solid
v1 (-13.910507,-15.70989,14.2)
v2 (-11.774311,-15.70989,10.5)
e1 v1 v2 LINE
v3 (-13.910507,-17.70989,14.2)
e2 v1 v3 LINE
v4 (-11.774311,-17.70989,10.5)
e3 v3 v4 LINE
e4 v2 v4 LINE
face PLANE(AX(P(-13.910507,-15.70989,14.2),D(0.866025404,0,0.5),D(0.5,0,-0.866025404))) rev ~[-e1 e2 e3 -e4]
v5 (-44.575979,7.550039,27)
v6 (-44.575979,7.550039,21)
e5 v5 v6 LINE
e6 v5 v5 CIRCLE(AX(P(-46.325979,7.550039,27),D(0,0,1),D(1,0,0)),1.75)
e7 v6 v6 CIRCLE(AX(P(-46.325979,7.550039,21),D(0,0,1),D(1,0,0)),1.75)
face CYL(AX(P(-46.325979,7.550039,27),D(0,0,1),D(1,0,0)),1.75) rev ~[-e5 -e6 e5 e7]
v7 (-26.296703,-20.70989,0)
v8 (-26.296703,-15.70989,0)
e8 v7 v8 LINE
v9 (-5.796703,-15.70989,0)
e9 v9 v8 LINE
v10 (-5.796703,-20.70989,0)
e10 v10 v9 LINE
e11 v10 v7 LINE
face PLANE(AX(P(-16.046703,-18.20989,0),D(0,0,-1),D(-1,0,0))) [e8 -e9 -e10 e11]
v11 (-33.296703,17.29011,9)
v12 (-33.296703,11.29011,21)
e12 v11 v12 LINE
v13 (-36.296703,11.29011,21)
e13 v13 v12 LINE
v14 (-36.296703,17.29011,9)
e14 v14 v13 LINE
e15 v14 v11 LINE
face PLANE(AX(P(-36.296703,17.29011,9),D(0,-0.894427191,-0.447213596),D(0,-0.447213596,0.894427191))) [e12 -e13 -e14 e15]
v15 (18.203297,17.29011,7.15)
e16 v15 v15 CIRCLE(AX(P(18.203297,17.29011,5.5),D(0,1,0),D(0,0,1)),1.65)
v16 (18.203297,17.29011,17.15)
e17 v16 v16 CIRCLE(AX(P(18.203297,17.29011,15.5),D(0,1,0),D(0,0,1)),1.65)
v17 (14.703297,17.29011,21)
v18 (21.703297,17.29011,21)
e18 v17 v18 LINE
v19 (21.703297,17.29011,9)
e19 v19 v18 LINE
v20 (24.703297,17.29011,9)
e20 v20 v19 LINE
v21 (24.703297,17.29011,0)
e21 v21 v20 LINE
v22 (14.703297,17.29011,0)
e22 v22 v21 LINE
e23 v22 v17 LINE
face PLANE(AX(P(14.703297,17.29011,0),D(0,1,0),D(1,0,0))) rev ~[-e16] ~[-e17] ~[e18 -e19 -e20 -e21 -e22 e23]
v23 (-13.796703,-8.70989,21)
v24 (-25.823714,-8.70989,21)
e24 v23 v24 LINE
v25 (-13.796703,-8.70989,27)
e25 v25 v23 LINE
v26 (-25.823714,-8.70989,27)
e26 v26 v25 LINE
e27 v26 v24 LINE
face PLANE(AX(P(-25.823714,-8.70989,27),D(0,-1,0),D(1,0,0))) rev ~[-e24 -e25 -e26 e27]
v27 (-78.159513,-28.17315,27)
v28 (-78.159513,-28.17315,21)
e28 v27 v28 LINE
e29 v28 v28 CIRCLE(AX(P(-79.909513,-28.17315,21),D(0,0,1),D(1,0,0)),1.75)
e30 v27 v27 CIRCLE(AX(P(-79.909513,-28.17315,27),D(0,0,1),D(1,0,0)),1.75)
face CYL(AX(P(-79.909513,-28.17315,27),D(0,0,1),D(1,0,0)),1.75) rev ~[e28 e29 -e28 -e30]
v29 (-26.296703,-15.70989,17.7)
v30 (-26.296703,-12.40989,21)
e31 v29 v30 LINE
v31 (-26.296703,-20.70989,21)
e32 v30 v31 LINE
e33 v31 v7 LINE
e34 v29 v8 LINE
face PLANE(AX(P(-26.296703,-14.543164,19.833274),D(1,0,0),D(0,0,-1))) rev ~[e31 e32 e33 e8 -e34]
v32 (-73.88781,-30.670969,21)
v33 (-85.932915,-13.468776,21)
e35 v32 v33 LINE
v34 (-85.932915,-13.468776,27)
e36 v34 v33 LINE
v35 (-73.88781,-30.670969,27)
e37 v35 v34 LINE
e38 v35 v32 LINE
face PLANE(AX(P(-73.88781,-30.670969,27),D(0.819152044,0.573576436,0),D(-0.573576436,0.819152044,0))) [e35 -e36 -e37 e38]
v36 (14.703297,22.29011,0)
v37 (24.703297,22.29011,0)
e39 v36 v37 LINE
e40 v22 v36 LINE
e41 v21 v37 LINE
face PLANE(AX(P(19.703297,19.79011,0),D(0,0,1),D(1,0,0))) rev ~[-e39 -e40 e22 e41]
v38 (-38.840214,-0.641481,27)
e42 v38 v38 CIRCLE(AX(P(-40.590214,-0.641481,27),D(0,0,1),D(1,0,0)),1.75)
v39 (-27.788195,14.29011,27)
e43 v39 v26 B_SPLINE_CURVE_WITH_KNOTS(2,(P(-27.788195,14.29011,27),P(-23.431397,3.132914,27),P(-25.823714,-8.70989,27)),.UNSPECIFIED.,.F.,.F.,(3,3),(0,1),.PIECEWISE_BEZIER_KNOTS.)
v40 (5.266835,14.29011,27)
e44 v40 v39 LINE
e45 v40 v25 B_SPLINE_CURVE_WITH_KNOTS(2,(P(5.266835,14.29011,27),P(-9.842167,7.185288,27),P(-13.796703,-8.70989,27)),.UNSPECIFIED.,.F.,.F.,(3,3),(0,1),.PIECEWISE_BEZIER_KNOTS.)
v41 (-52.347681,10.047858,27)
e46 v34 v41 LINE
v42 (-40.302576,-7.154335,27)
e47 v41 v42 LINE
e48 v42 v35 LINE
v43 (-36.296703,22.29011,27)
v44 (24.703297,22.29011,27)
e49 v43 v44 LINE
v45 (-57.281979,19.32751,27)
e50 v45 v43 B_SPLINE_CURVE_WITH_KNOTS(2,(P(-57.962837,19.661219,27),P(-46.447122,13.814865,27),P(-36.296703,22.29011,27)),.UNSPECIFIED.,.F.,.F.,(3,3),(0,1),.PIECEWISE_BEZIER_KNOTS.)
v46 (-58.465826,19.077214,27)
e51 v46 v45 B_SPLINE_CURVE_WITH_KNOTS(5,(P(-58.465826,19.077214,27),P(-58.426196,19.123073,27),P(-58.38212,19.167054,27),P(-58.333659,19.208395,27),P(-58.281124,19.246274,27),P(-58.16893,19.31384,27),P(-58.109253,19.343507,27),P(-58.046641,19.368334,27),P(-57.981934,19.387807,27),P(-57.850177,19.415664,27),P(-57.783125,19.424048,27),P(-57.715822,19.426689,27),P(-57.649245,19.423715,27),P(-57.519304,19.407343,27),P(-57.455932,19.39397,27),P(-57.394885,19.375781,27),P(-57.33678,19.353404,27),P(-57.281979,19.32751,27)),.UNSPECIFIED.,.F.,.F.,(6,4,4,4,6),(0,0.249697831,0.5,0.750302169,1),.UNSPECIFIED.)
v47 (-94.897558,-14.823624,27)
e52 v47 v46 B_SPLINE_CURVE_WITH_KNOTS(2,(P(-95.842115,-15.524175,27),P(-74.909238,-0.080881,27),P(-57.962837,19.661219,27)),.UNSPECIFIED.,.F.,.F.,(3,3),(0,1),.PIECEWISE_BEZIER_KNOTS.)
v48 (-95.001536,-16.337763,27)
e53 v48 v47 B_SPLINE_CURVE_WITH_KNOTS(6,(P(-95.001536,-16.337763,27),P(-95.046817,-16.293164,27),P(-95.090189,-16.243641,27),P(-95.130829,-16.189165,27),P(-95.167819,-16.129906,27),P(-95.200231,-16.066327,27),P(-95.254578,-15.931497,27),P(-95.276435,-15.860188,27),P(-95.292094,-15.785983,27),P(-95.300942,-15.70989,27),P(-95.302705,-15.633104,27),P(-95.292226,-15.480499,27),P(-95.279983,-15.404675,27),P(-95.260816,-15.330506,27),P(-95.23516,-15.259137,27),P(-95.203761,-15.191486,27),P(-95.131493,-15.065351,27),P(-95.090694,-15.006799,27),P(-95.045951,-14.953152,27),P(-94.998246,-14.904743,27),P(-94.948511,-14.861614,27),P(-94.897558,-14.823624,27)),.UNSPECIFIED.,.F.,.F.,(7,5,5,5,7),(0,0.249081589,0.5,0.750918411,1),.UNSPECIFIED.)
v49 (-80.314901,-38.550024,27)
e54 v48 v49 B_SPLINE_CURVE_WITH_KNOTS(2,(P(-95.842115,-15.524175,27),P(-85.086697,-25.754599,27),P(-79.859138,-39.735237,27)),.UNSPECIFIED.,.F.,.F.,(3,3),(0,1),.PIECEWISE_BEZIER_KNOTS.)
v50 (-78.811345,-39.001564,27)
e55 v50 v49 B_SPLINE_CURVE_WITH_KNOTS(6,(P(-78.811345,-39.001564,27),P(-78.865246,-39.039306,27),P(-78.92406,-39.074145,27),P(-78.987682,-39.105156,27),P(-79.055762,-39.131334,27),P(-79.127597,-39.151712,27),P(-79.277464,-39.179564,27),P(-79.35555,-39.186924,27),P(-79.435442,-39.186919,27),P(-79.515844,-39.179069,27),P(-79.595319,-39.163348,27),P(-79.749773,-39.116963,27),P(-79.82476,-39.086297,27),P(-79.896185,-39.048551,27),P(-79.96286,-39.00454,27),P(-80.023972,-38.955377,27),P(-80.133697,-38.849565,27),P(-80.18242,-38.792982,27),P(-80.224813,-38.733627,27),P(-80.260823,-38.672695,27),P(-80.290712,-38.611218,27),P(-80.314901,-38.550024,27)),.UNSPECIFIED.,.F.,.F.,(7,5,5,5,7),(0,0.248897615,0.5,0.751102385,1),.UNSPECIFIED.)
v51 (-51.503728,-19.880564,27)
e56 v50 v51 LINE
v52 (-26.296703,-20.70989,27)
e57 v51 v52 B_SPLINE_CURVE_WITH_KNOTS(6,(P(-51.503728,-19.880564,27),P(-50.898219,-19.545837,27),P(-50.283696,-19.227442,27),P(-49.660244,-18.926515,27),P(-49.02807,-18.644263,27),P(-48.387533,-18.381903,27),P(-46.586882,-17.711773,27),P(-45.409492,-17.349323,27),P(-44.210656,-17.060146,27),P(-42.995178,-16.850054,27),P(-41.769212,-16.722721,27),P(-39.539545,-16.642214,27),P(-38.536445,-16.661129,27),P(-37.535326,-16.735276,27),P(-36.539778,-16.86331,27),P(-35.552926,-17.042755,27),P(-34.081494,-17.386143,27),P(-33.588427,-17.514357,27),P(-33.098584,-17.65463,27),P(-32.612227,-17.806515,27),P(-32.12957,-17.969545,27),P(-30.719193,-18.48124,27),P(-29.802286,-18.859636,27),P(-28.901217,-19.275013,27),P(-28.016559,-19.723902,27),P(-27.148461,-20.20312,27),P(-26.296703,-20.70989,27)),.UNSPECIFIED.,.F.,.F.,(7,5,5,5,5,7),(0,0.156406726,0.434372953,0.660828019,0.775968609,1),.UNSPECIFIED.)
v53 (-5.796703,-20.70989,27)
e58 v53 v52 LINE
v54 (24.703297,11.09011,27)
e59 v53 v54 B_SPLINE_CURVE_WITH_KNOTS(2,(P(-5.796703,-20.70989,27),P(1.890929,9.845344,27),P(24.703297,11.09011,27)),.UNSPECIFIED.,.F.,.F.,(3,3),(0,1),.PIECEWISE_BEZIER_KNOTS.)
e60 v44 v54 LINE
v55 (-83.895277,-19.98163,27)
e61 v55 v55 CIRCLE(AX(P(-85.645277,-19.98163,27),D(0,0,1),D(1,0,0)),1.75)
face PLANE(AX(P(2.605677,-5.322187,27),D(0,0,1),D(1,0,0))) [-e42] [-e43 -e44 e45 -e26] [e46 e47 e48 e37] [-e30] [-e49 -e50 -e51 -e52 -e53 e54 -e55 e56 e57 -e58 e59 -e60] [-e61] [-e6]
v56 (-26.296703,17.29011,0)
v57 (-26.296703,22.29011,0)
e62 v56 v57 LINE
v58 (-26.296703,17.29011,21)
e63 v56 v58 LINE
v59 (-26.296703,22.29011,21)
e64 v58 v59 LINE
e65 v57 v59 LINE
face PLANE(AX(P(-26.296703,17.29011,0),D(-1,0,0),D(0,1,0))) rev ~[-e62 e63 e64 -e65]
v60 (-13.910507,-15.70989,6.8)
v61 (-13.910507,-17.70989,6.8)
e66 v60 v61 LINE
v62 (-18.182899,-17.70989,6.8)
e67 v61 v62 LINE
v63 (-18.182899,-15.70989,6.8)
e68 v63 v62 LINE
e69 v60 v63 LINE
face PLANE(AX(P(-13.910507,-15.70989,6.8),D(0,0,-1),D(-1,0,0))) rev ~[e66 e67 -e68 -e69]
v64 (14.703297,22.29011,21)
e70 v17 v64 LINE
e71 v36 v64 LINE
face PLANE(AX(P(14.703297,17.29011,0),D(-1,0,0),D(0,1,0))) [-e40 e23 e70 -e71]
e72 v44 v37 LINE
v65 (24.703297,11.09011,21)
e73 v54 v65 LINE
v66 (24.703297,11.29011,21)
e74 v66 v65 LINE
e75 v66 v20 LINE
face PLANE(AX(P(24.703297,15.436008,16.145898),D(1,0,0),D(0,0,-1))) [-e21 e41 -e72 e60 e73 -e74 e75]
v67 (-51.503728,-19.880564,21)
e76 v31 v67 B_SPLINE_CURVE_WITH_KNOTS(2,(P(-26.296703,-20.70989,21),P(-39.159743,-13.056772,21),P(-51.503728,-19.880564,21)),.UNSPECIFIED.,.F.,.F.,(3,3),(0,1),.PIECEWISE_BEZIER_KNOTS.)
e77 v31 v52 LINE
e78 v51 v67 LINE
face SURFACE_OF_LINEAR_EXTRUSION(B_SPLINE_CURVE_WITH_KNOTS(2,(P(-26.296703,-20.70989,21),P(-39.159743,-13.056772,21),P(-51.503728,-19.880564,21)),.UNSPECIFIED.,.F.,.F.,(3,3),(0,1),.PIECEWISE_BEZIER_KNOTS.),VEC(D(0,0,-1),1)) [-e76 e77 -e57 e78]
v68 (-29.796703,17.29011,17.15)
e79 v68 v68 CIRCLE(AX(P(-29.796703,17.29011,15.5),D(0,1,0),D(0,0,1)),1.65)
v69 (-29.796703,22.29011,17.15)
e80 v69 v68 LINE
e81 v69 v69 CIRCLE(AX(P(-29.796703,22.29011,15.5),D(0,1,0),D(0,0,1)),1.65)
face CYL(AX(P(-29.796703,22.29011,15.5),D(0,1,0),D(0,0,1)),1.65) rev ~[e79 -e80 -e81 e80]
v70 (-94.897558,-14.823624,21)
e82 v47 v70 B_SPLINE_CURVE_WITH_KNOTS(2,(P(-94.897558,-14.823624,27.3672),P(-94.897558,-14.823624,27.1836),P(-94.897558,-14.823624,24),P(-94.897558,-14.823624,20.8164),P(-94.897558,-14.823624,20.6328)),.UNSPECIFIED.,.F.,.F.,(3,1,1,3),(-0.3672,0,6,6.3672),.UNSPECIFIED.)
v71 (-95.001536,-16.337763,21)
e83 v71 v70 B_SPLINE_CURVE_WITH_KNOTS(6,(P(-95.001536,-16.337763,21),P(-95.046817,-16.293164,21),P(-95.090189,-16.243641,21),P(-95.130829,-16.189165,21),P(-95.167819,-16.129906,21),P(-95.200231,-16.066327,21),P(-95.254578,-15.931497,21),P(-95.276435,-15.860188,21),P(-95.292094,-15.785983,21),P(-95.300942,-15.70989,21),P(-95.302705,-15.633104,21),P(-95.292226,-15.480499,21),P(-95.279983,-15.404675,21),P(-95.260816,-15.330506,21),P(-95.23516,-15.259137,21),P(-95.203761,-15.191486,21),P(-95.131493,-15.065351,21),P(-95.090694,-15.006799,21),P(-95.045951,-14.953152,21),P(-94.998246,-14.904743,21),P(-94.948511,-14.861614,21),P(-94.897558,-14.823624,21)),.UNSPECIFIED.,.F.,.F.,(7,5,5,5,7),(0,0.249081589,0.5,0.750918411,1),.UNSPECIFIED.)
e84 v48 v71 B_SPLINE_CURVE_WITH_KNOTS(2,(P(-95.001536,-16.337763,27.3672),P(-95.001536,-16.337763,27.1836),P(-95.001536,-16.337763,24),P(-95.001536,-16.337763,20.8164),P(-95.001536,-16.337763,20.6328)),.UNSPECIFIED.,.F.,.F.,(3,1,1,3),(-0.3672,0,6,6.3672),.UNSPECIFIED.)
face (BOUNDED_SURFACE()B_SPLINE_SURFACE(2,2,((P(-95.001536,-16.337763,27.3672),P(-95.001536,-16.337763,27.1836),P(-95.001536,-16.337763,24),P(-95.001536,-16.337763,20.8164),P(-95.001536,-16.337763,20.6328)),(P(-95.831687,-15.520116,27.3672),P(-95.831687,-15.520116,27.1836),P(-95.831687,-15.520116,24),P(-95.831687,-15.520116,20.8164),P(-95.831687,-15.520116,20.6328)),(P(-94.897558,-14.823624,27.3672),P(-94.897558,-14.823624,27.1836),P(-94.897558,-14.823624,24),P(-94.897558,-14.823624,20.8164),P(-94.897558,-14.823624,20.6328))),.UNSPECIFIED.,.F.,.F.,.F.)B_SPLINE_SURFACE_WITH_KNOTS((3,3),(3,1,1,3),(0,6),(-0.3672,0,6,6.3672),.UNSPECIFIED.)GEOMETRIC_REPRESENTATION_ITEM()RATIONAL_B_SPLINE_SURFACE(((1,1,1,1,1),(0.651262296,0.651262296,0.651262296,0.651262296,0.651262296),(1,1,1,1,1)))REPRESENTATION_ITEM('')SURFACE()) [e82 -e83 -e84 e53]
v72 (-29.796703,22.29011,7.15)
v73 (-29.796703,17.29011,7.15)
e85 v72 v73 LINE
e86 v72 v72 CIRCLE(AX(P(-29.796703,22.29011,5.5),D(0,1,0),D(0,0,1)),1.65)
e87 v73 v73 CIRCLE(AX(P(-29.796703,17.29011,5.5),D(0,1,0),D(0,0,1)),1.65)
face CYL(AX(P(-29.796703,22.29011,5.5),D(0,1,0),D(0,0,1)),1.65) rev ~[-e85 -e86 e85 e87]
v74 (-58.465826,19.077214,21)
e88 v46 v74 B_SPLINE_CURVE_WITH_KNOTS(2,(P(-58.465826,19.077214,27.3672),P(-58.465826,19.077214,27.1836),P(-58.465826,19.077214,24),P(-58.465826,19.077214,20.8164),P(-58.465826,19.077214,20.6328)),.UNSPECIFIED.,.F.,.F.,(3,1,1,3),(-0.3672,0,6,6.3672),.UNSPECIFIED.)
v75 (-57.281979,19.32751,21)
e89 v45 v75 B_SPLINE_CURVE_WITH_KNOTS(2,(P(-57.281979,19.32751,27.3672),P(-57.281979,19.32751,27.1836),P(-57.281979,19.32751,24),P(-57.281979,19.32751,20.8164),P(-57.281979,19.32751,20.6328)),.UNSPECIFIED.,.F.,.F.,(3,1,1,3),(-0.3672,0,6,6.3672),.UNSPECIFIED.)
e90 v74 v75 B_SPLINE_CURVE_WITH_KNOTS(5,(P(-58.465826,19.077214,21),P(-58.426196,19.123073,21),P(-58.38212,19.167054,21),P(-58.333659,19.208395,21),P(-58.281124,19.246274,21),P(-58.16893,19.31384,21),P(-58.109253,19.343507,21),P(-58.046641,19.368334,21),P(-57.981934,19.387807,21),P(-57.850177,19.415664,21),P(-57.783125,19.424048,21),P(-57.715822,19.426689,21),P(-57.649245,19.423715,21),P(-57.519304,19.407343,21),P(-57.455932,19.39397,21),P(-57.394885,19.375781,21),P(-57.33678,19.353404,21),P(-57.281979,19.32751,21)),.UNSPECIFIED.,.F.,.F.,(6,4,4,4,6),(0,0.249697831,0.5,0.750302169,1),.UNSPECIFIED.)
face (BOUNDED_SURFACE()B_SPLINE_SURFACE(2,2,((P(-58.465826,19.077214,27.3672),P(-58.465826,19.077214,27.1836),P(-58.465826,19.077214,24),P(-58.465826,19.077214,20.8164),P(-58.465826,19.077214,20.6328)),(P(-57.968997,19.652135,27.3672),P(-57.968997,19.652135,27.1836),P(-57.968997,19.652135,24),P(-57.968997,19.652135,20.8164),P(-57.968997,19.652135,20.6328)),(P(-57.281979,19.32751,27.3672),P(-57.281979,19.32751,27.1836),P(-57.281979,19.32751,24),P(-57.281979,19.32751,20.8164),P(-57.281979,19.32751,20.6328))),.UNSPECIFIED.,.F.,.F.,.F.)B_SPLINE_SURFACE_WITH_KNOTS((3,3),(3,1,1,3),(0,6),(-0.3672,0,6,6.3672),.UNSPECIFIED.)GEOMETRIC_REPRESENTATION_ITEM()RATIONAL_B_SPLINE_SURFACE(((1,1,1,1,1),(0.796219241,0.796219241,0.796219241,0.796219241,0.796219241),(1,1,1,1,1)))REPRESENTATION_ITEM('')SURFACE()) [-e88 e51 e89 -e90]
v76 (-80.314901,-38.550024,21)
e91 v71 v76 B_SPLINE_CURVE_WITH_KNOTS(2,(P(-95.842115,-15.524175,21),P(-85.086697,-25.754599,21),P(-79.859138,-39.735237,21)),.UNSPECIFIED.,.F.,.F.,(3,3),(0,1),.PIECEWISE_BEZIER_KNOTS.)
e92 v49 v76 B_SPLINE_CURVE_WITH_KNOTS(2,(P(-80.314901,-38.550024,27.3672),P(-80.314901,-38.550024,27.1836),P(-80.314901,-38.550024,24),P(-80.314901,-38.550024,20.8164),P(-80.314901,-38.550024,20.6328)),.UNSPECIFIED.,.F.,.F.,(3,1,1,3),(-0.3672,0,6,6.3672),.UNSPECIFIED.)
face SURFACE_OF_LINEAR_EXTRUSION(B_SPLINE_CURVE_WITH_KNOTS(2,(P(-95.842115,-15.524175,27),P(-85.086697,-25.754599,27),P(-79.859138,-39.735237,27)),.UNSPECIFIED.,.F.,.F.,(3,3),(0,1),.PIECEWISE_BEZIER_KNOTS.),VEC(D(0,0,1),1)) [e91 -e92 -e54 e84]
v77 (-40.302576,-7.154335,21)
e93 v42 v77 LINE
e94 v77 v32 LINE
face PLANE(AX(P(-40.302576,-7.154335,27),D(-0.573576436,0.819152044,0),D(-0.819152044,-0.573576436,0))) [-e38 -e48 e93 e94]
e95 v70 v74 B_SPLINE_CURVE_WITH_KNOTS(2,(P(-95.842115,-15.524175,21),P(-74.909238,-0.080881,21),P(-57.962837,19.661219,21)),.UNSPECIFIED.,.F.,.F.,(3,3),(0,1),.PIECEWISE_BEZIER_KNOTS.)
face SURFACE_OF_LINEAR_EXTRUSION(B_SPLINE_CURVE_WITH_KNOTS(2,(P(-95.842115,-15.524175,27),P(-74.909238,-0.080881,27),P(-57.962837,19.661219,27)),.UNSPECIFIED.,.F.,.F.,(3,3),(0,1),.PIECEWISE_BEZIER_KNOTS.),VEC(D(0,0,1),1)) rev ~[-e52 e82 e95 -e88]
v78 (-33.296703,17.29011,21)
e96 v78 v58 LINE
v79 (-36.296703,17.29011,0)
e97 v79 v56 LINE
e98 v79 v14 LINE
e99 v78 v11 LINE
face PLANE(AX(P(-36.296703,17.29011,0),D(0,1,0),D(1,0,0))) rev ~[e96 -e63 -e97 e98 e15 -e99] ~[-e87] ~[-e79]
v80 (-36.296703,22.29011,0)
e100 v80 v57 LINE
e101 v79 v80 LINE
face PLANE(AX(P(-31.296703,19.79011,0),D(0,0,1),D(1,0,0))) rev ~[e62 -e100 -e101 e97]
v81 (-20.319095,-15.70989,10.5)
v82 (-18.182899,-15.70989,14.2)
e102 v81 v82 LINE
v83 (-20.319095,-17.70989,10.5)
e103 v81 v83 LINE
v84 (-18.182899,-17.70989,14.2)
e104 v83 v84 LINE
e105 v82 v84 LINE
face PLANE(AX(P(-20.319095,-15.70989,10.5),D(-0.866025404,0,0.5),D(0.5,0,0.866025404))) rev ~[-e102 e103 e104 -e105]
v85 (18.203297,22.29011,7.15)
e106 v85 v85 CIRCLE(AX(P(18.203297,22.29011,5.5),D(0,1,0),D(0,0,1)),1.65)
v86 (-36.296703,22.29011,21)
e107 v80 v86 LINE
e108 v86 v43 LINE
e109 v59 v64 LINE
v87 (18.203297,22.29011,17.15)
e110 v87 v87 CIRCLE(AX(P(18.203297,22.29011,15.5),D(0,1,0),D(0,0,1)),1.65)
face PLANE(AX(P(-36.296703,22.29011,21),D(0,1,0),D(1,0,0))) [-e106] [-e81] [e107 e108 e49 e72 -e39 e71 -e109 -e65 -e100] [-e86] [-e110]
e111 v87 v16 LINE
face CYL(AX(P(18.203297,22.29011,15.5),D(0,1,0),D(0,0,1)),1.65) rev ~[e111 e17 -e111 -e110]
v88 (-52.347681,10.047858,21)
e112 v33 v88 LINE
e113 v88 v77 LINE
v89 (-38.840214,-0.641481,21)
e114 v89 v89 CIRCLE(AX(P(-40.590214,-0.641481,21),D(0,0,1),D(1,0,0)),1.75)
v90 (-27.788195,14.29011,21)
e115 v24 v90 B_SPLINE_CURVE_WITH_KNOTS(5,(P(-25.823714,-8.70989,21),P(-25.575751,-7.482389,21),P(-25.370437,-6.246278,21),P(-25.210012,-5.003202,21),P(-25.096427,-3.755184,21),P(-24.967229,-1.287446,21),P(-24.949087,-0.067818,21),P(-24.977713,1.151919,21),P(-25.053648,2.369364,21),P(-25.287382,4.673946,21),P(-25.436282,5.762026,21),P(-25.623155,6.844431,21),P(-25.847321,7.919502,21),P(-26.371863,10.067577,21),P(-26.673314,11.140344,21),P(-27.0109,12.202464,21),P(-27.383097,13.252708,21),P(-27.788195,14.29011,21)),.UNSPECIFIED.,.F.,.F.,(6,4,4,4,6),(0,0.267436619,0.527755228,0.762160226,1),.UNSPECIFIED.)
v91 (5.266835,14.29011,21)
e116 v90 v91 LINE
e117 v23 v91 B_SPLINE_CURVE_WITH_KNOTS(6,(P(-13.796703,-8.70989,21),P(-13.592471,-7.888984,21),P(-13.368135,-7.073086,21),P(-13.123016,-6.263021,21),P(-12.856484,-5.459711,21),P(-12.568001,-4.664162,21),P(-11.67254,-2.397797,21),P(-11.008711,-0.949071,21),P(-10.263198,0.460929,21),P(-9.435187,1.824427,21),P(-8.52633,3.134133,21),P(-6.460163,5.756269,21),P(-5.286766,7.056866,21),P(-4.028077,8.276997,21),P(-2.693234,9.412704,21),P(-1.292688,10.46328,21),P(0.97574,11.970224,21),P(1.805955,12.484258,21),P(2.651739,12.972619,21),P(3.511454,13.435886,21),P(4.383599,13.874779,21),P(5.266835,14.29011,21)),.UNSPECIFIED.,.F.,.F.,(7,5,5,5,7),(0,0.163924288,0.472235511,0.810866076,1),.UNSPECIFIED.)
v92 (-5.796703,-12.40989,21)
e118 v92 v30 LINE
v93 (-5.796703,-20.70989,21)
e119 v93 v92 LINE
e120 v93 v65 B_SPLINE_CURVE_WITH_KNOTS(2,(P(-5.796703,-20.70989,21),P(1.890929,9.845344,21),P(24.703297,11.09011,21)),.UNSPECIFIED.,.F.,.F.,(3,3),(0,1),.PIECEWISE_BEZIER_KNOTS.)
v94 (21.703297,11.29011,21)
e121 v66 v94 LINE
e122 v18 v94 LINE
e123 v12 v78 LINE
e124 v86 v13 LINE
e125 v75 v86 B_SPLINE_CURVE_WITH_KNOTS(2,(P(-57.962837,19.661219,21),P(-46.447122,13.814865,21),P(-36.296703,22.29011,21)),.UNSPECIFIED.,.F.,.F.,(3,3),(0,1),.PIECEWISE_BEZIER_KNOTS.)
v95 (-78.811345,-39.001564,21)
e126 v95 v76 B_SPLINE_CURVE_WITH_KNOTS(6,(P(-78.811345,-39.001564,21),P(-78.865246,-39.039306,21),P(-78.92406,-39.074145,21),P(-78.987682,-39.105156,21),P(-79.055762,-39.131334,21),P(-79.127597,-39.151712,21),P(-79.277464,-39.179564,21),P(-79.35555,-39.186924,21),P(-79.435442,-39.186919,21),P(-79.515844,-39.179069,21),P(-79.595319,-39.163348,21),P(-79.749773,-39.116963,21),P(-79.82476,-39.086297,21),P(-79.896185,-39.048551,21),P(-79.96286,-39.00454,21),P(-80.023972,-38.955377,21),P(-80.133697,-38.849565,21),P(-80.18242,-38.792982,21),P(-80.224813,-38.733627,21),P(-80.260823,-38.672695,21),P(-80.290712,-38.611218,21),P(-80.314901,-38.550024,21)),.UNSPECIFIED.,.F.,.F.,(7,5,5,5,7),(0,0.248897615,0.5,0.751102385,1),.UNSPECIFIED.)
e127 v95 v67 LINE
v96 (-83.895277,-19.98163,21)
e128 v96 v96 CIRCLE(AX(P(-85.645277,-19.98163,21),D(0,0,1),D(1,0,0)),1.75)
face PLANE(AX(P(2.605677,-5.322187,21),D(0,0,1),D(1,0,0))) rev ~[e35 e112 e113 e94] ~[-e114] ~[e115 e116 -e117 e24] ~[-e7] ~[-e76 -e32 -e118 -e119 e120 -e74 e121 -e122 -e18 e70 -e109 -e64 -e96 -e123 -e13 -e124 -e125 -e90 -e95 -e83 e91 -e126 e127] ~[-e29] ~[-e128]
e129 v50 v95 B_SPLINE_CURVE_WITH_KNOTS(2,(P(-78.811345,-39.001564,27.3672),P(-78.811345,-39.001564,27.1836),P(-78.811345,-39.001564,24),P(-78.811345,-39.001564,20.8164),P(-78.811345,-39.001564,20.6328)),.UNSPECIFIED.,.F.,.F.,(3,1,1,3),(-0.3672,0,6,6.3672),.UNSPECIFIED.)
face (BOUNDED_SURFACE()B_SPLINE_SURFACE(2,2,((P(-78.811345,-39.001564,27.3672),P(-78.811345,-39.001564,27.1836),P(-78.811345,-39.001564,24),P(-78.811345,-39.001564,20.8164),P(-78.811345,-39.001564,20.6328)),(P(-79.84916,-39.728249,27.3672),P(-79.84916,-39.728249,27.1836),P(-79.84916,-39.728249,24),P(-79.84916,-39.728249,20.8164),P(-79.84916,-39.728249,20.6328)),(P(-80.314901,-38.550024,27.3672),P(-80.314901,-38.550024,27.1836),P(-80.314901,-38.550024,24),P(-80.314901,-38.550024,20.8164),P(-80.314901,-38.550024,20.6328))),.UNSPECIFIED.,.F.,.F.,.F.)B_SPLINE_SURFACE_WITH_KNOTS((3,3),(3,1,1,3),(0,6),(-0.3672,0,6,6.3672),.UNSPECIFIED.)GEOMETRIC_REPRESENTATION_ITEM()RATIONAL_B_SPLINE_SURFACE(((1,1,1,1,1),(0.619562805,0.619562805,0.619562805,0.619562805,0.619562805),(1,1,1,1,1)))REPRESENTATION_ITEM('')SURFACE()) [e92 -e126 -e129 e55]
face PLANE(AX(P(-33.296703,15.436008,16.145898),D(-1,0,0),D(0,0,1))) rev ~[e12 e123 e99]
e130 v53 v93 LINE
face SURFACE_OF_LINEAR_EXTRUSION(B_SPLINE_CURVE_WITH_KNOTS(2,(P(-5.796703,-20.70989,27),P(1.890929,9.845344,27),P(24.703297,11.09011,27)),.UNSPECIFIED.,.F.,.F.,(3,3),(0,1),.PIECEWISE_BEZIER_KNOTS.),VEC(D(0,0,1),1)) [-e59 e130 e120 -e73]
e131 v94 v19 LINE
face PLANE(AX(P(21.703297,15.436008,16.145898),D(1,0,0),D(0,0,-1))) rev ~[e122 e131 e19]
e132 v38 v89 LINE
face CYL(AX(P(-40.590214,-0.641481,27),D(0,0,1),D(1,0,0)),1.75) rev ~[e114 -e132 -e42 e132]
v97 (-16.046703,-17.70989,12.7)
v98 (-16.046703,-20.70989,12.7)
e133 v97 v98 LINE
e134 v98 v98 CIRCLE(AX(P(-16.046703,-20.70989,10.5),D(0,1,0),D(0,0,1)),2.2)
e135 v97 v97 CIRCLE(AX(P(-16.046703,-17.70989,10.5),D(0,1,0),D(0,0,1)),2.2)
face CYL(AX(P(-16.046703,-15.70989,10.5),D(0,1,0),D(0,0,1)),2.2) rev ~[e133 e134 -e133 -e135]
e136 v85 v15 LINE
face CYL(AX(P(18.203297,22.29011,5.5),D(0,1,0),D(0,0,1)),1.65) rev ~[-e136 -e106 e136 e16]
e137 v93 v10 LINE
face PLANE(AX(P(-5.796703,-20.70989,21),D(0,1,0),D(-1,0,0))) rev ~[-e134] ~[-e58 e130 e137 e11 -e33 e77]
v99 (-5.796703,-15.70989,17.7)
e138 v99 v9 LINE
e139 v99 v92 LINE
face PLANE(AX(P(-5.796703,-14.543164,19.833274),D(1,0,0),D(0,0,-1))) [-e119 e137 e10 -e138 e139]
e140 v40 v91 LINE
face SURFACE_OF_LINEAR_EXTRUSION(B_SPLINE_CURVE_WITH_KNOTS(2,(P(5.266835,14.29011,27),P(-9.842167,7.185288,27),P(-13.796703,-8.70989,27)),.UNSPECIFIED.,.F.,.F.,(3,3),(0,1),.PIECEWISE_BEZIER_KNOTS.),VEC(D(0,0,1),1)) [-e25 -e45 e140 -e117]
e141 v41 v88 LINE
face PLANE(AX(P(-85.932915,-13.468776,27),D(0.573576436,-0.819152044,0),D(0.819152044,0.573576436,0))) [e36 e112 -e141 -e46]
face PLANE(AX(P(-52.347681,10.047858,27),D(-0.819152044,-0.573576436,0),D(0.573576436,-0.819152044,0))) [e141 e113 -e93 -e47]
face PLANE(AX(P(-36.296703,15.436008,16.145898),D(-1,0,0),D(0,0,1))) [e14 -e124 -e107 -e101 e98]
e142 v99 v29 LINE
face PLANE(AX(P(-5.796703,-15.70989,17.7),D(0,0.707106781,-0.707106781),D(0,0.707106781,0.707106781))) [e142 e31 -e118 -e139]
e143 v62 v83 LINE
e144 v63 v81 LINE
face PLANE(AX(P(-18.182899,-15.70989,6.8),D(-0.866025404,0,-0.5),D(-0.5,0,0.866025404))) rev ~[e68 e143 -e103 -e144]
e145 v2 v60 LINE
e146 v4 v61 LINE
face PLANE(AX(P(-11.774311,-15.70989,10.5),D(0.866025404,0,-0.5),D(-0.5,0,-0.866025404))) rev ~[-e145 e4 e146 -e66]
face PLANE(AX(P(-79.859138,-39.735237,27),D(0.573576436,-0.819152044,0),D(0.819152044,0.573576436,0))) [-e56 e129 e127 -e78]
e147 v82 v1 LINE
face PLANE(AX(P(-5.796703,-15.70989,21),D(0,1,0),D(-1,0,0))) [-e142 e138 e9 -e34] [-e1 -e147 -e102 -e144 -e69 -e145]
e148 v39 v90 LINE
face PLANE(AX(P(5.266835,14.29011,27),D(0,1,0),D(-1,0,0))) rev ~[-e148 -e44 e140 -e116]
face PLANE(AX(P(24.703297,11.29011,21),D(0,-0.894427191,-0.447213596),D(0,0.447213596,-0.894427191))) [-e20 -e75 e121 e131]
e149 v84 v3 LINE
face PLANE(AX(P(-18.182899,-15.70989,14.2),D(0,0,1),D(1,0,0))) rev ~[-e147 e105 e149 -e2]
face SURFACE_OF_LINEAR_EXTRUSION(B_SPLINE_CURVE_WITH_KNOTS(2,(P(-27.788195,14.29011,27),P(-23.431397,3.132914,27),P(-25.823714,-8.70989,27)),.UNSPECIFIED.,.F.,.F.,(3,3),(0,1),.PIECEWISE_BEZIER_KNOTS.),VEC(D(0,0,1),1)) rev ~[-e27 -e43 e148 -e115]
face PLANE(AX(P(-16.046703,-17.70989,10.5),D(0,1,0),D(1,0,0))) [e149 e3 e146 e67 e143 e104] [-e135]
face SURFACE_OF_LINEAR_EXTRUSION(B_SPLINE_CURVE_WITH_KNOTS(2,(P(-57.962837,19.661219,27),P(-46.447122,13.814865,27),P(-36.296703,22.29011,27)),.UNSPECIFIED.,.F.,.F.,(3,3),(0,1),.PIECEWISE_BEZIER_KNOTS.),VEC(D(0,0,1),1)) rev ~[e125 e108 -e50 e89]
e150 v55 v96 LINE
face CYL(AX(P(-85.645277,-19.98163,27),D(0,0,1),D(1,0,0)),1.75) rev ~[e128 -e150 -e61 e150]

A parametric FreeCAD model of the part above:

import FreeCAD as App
import Part
import Sketcher
Q = App.Units.Quantity


def edges_at(feature, points):
    """Names of the edges that pass closest to the given points."""
    edges = feature.Shape.Edges
    near = lambda p: min(range(len(edges)), key=lambda i: edges[i].distToShape(Part.Vertex(*p))[0])
    return sorted({f"Edge{near(p) + 1}" for p in points})


def add_polygon(sketch, points):
    """Adds a closed chain of lines whose ends are joined by coincident constraints."""
    first, n = sketch.GeometryCount, len(points)
    for a, b in zip(points, points[1:] + points[:1]):
        sketch.addGeometry(Part.LineSegment(App.Vector(*a, 0), App.Vector(*b, 0)), False)
    for i in range(n):
        sketch.addConstraint(Sketcher.Constraint("Coincident", first + i, 2, first + (i + 1) % n, 1))

doc = App.newDocument("Part")
body = doc.addObject("PartDesign::Body", "Body")

# Sketch on XY plane
sketch1 = body.newObject("Sketcher::SketchObject", "Sketch")
sketch1.AttachmentSupport = (doc.getObject("XY_Plane"), [""])
sketch1.MapMode = "FlatFace"
add_polygon(sketch1, [(-36.296703, 22.29011), (-36.296703, 17.29011), (-26.296703, 17.29011), (-26.296703, 22.29011)])  # lines 0-3
sketch1.addConstraint([
    Sketcher.Constraint("Vertical", 0),
    Sketcher.Constraint("Horizontal", 1),
    Sketcher.Constraint("Vertical", 2),
    Sketcher.Constraint("Horizontal", 3),
    Sketcher.Constraint("DistanceX", 1, 1, 1, 2, 10.0),
    Sketcher.Constraint("DistanceY", 0, 2, 0, 1, 5.0),
    Sketcher.Constraint("DistanceY", -1, 1, 0, 2, 17.29011),
    Sketcher.Constraint("DistanceX", 0, 2, -1, 1, 36.296703),
])
pad1 = body.newObject("PartDesign::Pad", "Pad")
pad1.Profile = sketch1
pad1.Length = 21
body2 = doc.addObject("PartDesign::Body", "Body001")

# Sketch on XY plane
sketch2 = body2.newObject("Sketcher::SketchObject", "Sketch001")
sketch2.AttachmentSupport = (doc.getObject("XY_Plane001"), [""])
sketch2.MapMode = "FlatFace"
add_polygon(sketch2, [(14.703297, 22.29011), (14.703297, 17.29011), (24.703297, 17.29011), (24.703297, 22.29011)])  # lines 0-3
sketch2.addConstraint([
    Sketcher.Constraint("Vertical", 0),
    Sketcher.Constraint("Horizontal", 1),
    Sketcher.Constraint("Vertical", 2),
    Sketcher.Constraint("Horizontal", 3),
    Sketcher.Constraint("DistanceX", 1, 1, 1, 2, 10.0),
    Sketcher.Constraint("DistanceY", 0, 2, 0, 1, 5.0),
    Sketcher.Constraint("DistanceY", -1, 1, 0, 2, 17.29011),
    Sketcher.Constraint("DistanceX", -1, 1, 0, 2, 14.703297),
])
pad2 = body2.newObject("PartDesign::Pad", "Pad001")
pad2.Profile = sketch2
pad2.Length = 21
body.AllowCompound = True
doc.recompute()

boolean = body.newObject("PartDesign::Boolean", "Boolean")
boolean.Type = "Fuse"
boolean.addObjects([body2])

# Sketch on XY plane
sketch3 = body.newObject("Sketcher::SketchObject", "Sketch002")
sketch3.AttachmentSupport = (doc.getObject("XY_Plane"), [""])
sketch3.MapMode = "FlatFace"
sketch3.AttachmentOffset = App.Placement(App.Vector(0, 0, 21), App.Rotation())
add_polygon(sketch3, [(24.703297, 22.29011), (-36.296703, 22.29011), (-36.296703, -20.70989), (-5.796703, -20.70989), (-5.796703, -11.20989), (12.703297, 7.29011), (24.703297, 7.29011)])  # lines 0-6
sketch3.addConstraint([
    Sketcher.Constraint("Horizontal", 0),
    Sketcher.Constraint("Vertical", 1),
    Sketcher.Constraint("Horizontal", 2),
    Sketcher.Constraint("Vertical", 3),
    Sketcher.Constraint("Horizontal", 5),
    Sketcher.Constraint("Vertical", 6),
    Sketcher.Constraint("DistanceX", 0, 2, 0, 1, 61.0),
    Sketcher.Constraint("DistanceX", 5, 1, 5, 2, 12.0),
    Sketcher.Constraint("DistanceY", 1, 2, 1, 1, 43.0),
    Sketcher.Constraint("DistanceY", 6, 1, 6, 2, 15.0),
    Sketcher.Constraint("Angle", 4, Q("45 deg")),
    Sketcher.Constraint("DistanceX", 2, 1, 2, 2, 30.5),
    Sketcher.Constraint("DistanceY", -1, 1, 0, 2, 22.29011),
    Sketcher.Constraint("DistanceX", 0, 2, -1, 1, 36.296703),
])
pad3 = body.newObject("PartDesign::Pad", "Pad002")
pad3.Profile = sketch3
pad3.Length = 6

# Sketch on XY plane
sketch4 = body.newObject("Sketcher::SketchObject", "Sketch003")
sketch4.AttachmentSupport = (doc.getObject("XY_Plane"), [""])
sketch4.MapMode = "FlatFace"
sketch4.AttachmentOffset = App.Placement(App.Vector(0, 0, 21), App.Rotation())
add_polygon(sketch4, [(-5.796703, -15.70989), (-5.796703, -20.70989), (-26.296703, -20.70989), (-26.296703, -15.70989)])  # lines 0-3
sketch4.addConstraint([
    Sketcher.Constraint("Vertical", 0),
    Sketcher.Constraint("Horizontal", 1),
    Sketcher.Constraint("Vertical", 2),
    Sketcher.Constraint("Horizontal", 3),
    Sketcher.Constraint("DistanceY", 0, 2, 0, 1, 5.0),
    Sketcher.Constraint("DistanceX", 1, 2, 1, 1, 20.5),
    Sketcher.Constraint("DistanceY", 0, 2, -1, 1, 20.70989),
    Sketcher.Constraint("DistanceX", 0, 2, -1, 1, 5.796703),
])
pad4 = body.newObject("PartDesign::Pad", "Pad003")
pad4.Profile = sketch4
pad4.Length = 21
pad4.Reversed = True

# Sketch on XZ plane
sketch5 = body.newObject("Sketcher::SketchObject", "Sketch004")
sketch5.AttachmentSupport = (doc.getObject("XZ_Plane"), [""])
sketch5.MapMode = "FlatFace"
sketch5.AttachmentOffset = App.Placement(App.Vector(0, 0, -22.29011), App.Rotation())
sketch5.addGeometry(Part.Circle(App.Vector(-29.796703, 5.5, 0), App.Vector(0, 0, 1), 1.65), False)
sketch5.addConstraint([
    Sketcher.Constraint("Diameter", 0, 3.3),
    Sketcher.Constraint("DistanceY", -1, 1, 0, 3, 5.5),
    Sketcher.Constraint("DistanceX", 0, 3, -1, 1, 29.796703),
])
pocket1 = body.newObject("PartDesign::Pocket", "Pocket")
pocket1.Profile = sketch5
pocket1.Type = "UpToFirst"
pocket1.Reversed = True

# Sketch on XZ plane
sketch6 = body.newObject("Sketcher::SketchObject", "Sketch005")
sketch6.AttachmentSupport = (doc.getObject("XZ_Plane"), [""])
sketch6.MapMode = "FlatFace"
sketch6.AttachmentOffset = App.Placement(App.Vector(0, 0, -22.29011), App.Rotation())
sketch6.addGeometry(Part.Circle(App.Vector(18.203297, 5.5, 0), App.Vector(0, 0, 1), 1.65), False)
sketch6.addConstraint([
    Sketcher.Constraint("Diameter", 0, 3.3),
    Sketcher.Constraint("DistanceY", -1, 1, 0, 3, 5.5),
    Sketcher.Constraint("DistanceX", -1, 1, 0, 3, 18.203297),
])
pocket2 = body.newObject("PartDesign::Pocket", "Pocket001")
pocket2.Profile = sketch6
pocket2.Type = "UpToFirst"
pocket2.Reversed = True

# Sketch on XZ plane
sketch7 = body.newObject("Sketcher::SketchObject", "Sketch006")
sketch7.AttachmentSupport = (doc.getObject("XZ_Plane"), [""])
sketch7.MapMode = "FlatFace"
sketch7.AttachmentOffset = App.Placement(App.Vector(0, 0, -22.29011), App.Rotation())
sketch7.addGeometry(Part.Circle(App.Vector(18.203297, 15.5, 0), App.Vector(0, 0, 1), 1.65), False)
sketch7.addConstraint([
    Sketcher.Constraint("Diameter", 0, 3.3),
    Sketcher.Constraint("DistanceY", -1, 1, 0, 3, 15.5),
    Sketcher.Constraint("DistanceX", -1, 1, 0, 3, 18.203297),
])
pocket3 = body.newObject("PartDesign::Pocket", "Pocket002")
pocket3.Profile = sketch7
pocket3.Type = "UpToFirst"
pocket3.Reversed = True

# Sketch on XZ plane
sketch8 = body.newObject("Sketcher::SketchObject", "Sketch007")
sketch8.AttachmentSupport = (doc.getObject("XZ_Plane"), [""])
sketch8.MapMode = "FlatFace"
sketch8.AttachmentOffset = App.Placement(App.Vector(0, 0, -22.29011), App.Rotation())
sketch8.addGeometry(Part.Circle(App.Vector(-29.796703, 15.5, 0), App.Vector(0, 0, 1), 1.65), False)
sketch8.addConstraint([
    Sketcher.Constraint("Diameter", 0, 3.3),
    Sketcher.Constraint("DistanceY", -1, 1, 0, 3, 15.5),
    Sketcher.Constraint("DistanceX", 0, 3, -1, 1, 29.796703),
])
pocket4 = body.newObject("PartDesign::Pocket", "Pocket003")
pocket4.Profile = sketch8
pocket4.Type = "UpToFirst"
pocket4.Reversed = True

# Sketch on XZ plane
sketch9 = body.newObject("Sketcher::SketchObject", "Sketch008")
sketch9.AttachmentSupport = (doc.getObject("XZ_Plane"), [""])
sketch9.MapMode = "FlatFace"
sketch9.AttachmentOffset = App.Placement(App.Vector(0, 0, 15.70989), App.Rotation())
sketch9.addGeometry(Part.Circle(App.Vector(-16.046703, 10.5, 0), App.Vector(0, 0, 1), 2.2), False)
sketch9.addConstraint([
    Sketcher.Constraint("Diameter", 0, 4.4),
    Sketcher.Constraint("DistanceY", -1, 1, 0, 3, 10.5),
    Sketcher.Constraint("DistanceX", 0, 3, -1, 1, 16.046703),
])
pocket5 = body.newObject("PartDesign::Pocket", "Pocket004")
pocket5.Profile = sketch9
pocket5.Type = "UpToFirst"
pocket5.Reversed = True

# Sketch on XY plane
sketch10 = body.newObject("Sketcher::SketchObject", "Sketch009")
sketch10.AttachmentSupport = (doc.getObject("XY_Plane"), [""])
sketch10.MapMode = "FlatFace"
sketch10.AttachmentOffset = App.Placement(App.Vector(0, 0, 27), App.Rotation())
sketch10.addGeometry(Part.LineSegment(App.Vector(-79.859138, -39.735237, 0), App.Vector(-51.503728, -19.880564, 0)), False)  # 0
sketch10.addGeometry(Part.BSplineCurve([App.Vector(-51.503728, -19.880564, 0), App.Vector(-43.777944, -18.491062, 0), App.Vector(-36.296703, -20.70989, 0)], [3, 3], [0, 1], False, 2, [1, 1, 1], False), False)  # 1
sketch10.addGeometry(Part.LineSegment(App.Vector(-36.296703, -20.70989, 0), App.Vector(-36.296703, 22.29011, 0)), False)  # 2
sketch10.addGeometry(Part.BSplineCurve([App.Vector(-57.962837, 19.661219, 0), App.Vector(-46.447122, 13.814865, 0), App.Vector(-36.296703, 22.29011, 0)], [3, 3], [0, 1], False, 2, [1, 1, 1], False), False)  # 3
sketch10.addGeometry(Part.BSplineCurve([App.Vector(-95.842115, -15.524175, 0), App.Vector(-74.909238, -0.080881, 0), App.Vector(-57.962837, 19.661219, 0)], [3, 3], [0, 1], False, 2, [1, 1, 1], False), False)  # 4
sketch10.addGeometry(Part.BSplineCurve([App.Vector(-95.842115, -15.524175, 0), App.Vector(-85.086697, -25.754599, 0), App.Vector(-79.859138, -39.735237, 0)], [3, 3], [0, 1], False, 2, [1, 1, 1], False), False)  # 5
sketch10.addGeometry(Part.Circle(App.Vector(-79.909513, -28.17315, 0), App.Vector(0, 0, 1), 1.75), False)  # 6
sketch10.addGeometry(Part.Circle(App.Vector(-85.645277, -19.98163, 0), App.Vector(0, 0, 1), 1.75), False)  # 7
add_polygon(sketch10, [(-73.88781, -30.670969), (-85.932915, -13.468776), (-52.347681, 10.047858), (-40.302576, -7.154335)])  # lines 8-11
sketch10.addGeometry(Part.Circle(App.Vector(-40.590214, -0.641481, 0), App.Vector(0, 0, 1), 1.75), False)  # 12
sketch10.addGeometry(Part.Circle(App.Vector(-46.325979, 7.550039, 0), App.Vector(0, 0, 1), 1.75), False)  # 13
sketch10.addConstraint([
    Sketcher.Constraint("Block", 1),
    Sketcher.Constraint("Block", 3),
    Sketcher.Constraint("Block", 4),
    Sketcher.Constraint("Block", 5),
    Sketcher.Constraint("Coincident", 0, 2, 1, 1),
    Sketcher.Constraint("Coincident", 1, 2, 2, 1),
    Sketcher.Constraint("Coincident", 2, 2, 3, 2),
    Sketcher.Constraint("Coincident", 5, 2, 0, 1),
    Sketcher.Constraint("Diameter", 6, 3.5),
    Sketcher.Constraint("Diameter", 7, 3.5),
    Sketcher.Constraint("Diameter", 12, 3.5),
    Sketcher.Constraint("Diameter", 13, 3.5),
    Sketcher.Constraint("Distance", 8, 21.0),
    Sketcher.Constraint("Distance", 9, 41.0),
    Sketcher.Constraint("Distance", 10, 21.0),
    Sketcher.Constraint("Distance", 11, 41.0),
    Sketcher.Constraint("DistanceX", 6, 3, 12, 3, 39.319298),
    Sketcher.Constraint("DistanceX", 7, 3, 13, 3, 39.319298),
    Sketcher.Constraint("DistanceX", 8, 2, 12, 3, 45.342701),
    Sketcher.Constraint("DistanceY", 6, 3, -1, 1, 28.17315),
    Sketcher.Constraint("DistanceY", 7, 3, -1, 1, 19.98163),
    Sketcher.Constraint("DistanceY", 12, 3, -1, 1, 0.641481),
    Sketcher.Constraint("DistanceX", 13, 3, -1, 1, 46.325979),
    Sketcher.Constraint("DistanceY", -1, 1, 13, 3, 7.550039),
    Sketcher.Constraint("DistanceX", 9, 2, -1, 1, 52.347681),
    Sketcher.Constraint("DistanceX", 11, 2, -1, 1, 73.88781),
    Sketcher.Constraint("DistanceY", 11, 2, -1, 1, 30.670969),
    Sketcher.Constraint("DistanceX", 12, 3, 2, 2, 4.293511),
])
pad5 = body.newObject("PartDesign::Pad", "Pad004")
pad5.Profile = sketch10
pad5.Length = 6
pad5.Reversed = True

# Sketch on XY plane
sketch11 = body.newObject("Sketcher::SketchObject", "Sketch010")
sketch11.AttachmentSupport = (doc.getObject("XY_Plane"), [""])
sketch11.MapMode = "FlatFace"
sketch11.AttachmentOffset = App.Placement(App.Vector(0, 0, 21), App.Rotation())
sketch11.addGeometry([
    Part.LineSegment(App.Vector(-26.296703, -20.70989, 0), App.Vector(-36.296703, -20.70989, 0)),
    Part.BSplineCurve([App.Vector(-51.503728, -19.880564, 0), App.Vector(-43.777944, -18.491062, 0), App.Vector(-36.296703, -20.70989, 0)], [3, 3], [0, 1], False, 2, [1, 1, 1], False),
    Part.BSplineCurve([App.Vector(-26.296703, -20.70989, 0), App.Vector(-39.159743, -13.056772, 0), App.Vector(-51.503728, -19.880564, 0)], [3, 3], [0, 1], False, 2, [1, 1, 1], False),
], False)
sketch11.addConstraint([
    Sketcher.Constraint("Block", 1),
    Sketcher.Constraint("Block", 2),
    Sketcher.Constraint("Coincident", 0, 2, 1, 2),
    Sketcher.Constraint("Coincident", 2, 1, 0, 1),
])
pocket6 = body.newObject("PartDesign::Pocket", "Pocket005")
pocket6.Profile = sketch11
pocket6.Type = "UpToFirst"
pocket6.Reversed = True

# Sketch on XY plane
sketch12 = body.newObject("Sketcher::SketchObject", "Sketch011")
sketch12.AttachmentSupport = (doc.getObject("XY_Plane"), [""])
sketch12.MapMode = "FlatFace"
sketch12.AttachmentOffset = App.Placement(App.Vector(0, 0, 27), App.Rotation())
sketch12.addGeometry([
    Part.LineSegment(App.Vector(5.266835, 14.29011, 0), App.Vector(-27.788195, 14.29011, 0)),
    Part.BSplineCurve([App.Vector(-27.788195, 14.29011, 0), App.Vector(-23.431397, 3.132914, 0), App.Vector(-25.823714, -8.70989, 0)], [3, 3], [0, 1], False, 2, [1, 1, 1], False),
    Part.LineSegment(App.Vector(-25.823714, -8.70989, 0), App.Vector(-13.796703, -8.70989, 0)),
    Part.BSplineCurve([App.Vector(5.266835, 14.29011, 0), App.Vector(-9.842167, 7.185288, 0), App.Vector(-13.796703, -8.70989, 0)], [3, 3], [0, 1], False, 2, [1, 1, 1], False),
], False)
sketch12.addConstraint([
    Sketcher.Constraint("Block", 1),
    Sketcher.Constraint("Block", 3),
    Sketcher.Constraint("Coincident", 0, 2, 1, 1),
    Sketcher.Constraint("Coincident", 1, 2, 2, 1),
    Sketcher.Constraint("Coincident", 2, 2, 3, 2),
    Sketcher.Constraint("Coincident", 3, 1, 0, 1),
])
pocket7 = body.newObject("PartDesign::Pocket", "Pocket006")
pocket7.Profile = sketch12
pocket7.Type = "UpToFirst"

# Sketch on XY plane
sketch13 = body.newObject("Sketcher::SketchObject", "Sketch012")
sketch13.AttachmentSupport = (doc.getObject("XY_Plane"), [""])
sketch13.MapMode = "FlatFace"
sketch13.AttachmentOffset = App.Placement(App.Vector(0, 0, 27), App.Rotation())
sketch13.addGeometry([
    Part.LineSegment(App.Vector(15.119169, 7.29011, 0), App.Vector(12.703297, 7.29011, 0)),
    Part.LineSegment(App.Vector(12.703297, 7.29011, 0), App.Vector(-5.796703, -11.20989, 0)),
    Part.LineSegment(App.Vector(-5.796703, -11.20989, 0), App.Vector(-5.796703, -20.70989, 0)),
    Part.BSplineCurve([App.Vector(-5.796703, -20.70989, 0), App.Vector(-0.066927, -3.022661, 0), App.Vector(15.119169, 7.29011, 0)], [3, 3], [0, 1], False, 2, [1, 1, 1], False),
], False)
sketch13.addConstraint([
    Sketcher.Constraint("Block", 3),
    Sketcher.Constraint("Coincident", 0, 2, 1, 1),
    Sketcher.Constraint("Coincident", 1, 2, 2, 1),
    Sketcher.Constraint("Coincident", 2, 2, 3, 1),
    Sketcher.Constraint("Coincident", 3, 2, 0, 1),
    Sketcher.Constraint("Horizontal", 0),
    Sketcher.Constraint("Vertical", 2),
    Sketcher.Constraint("DistanceY", 2, 2, 2, 1, 9.5),
    Sketcher.Constraint("DistanceX", 1, 2, 0, 2, 18.5),
])
pad6 = body.newObject("PartDesign::Pad", "Pad005")
pad6.Profile = sketch13
pad6.Length = 6
pad6.Reversed = True

# Sketch on YZ plane
sketch14 = body.newObject("Sketcher::SketchObject", "Sketch013")
sketch14.AttachmentSupport = (doc.getObject("YZ_Plane"), [""])
sketch14.MapMode = "FlatFace"
sketch14.AttachmentOffset = App.Placement(App.Vector(0, 0, 24.703297), App.Rotation())
add_polygon(sketch14, [(11.29011, 21), (17.29011, 9), (17.29011, 21)])  # lines 0-2
sketch14.addConstraint([
    Sketcher.Constraint("Vertical", 1),
    Sketcher.Constraint("Horizontal", 2),
    Sketcher.Constraint("DistanceX", 2, 2, 2, 1, 6.0),
    Sketcher.Constraint("DistanceY", 1, 1, 1, 2, 12.0),
    Sketcher.Constraint("DistanceY", -1, 1, 0, 2, 9.0),
    Sketcher.Constraint("DistanceX", -1, 1, 0, 2, 17.29011),
])
pad7 = body.newObject("PartDesign::Pad", "Pad006")
pad7.Profile = sketch14
pad7.Length = 3
pad7.Reversed = True

# Sketch on YZ plane
sketch15 = body.newObject("Sketcher::SketchObject", "Sketch014")
sketch15.AttachmentSupport = (doc.getObject("YZ_Plane"), [""])
sketch15.MapMode = "FlatFace"
sketch15.AttachmentOffset = App.Placement(App.Vector(0, 0, -36.296703), App.Rotation())
add_polygon(sketch15, [(11.29011, 21), (17.29011, 21), (17.29011, 9)])  # lines 0-2
sketch15.addConstraint([
    Sketcher.Constraint("Horizontal", 0),
    Sketcher.Constraint("Vertical", 1),
    Sketcher.Constraint("DistanceX", 0, 1, 0, 2, 6.0),
    Sketcher.Constraint("DistanceY", 1, 2, 1, 1, 12.0),
    Sketcher.Constraint("DistanceY", -1, 1, 0, 2, 21.0),
    Sketcher.Constraint("DistanceX", -1, 1, 0, 2, 17.29011),
])
pad8 = body.newObject("PartDesign::Pad", "Pad007")
pad8.Profile = sketch15
pad8.Length = 3

# Sketch on YZ plane
sketch16 = body.newObject("Sketcher::SketchObject", "Sketch015")
sketch16.AttachmentSupport = (doc.getObject("YZ_Plane"), [""])
sketch16.MapMode = "FlatFace"
sketch16.AttachmentOffset = App.Placement(App.Vector(0, 0, -5.796703), App.Rotation())
add_polygon(sketch16, [(-15.70989, 17.7), (-12.40989, 21), (-15.70989, 21)])  # lines 0-2
sketch16.addConstraint([
    Sketcher.Constraint("Horizontal", 1),
    Sketcher.Constraint("Vertical", 2),
    Sketcher.Constraint("Equal", 1, 2),
    Sketcher.Constraint("DistanceX", 1, 2, 1, 1, 3.3),
    Sketcher.Constraint("DistanceY", -1, 1, 0, 2, 21.0),
    Sketcher.Constraint("DistanceX", 0, 2, -1, 1, 12.40989),
])
pad9 = body.newObject("PartDesign::Pad", "Pad008")
pad9.Profile = sketch16
pad9.Length = 20.5
pad9.Reversed = True

# Sketch on XY plane
sketch17 = body.newObject("Sketcher::SketchObject", "Sketch016")
sketch17.AttachmentSupport = (doc.getObject("XY_Plane"), [""])
sketch17.MapMode = "FlatFace"
sketch17.AttachmentOffset = App.Placement(App.Vector(0, 0, 27), App.Rotation())
sketch17.addGeometry([
    Part.LineSegment(App.Vector(24.703297, 7.29011, 0), App.Vector(24.703297, 11.09011, 0)),
    Part.BSplineCurve([App.Vector(-5.796703, -20.70989, 0), App.Vector(1.890929, 9.845344, 0), App.Vector(24.703297, 11.09011, 0)], [3, 3], [0, 1], False, 2, [1, 1, 1], False),
    Part.BSplineCurve([App.Vector(-5.796703, -20.70989, 0), App.Vector(-0.066927, -3.022661, 0), App.Vector(15.119169, 7.29011, 0)], [3, 3], [0, 1], False, 2, [1, 1, 1], False),
    Part.LineSegment(App.Vector(15.119169, 7.29011, 0), App.Vector(24.703297, 7.29011, 0)),
], False)
sketch17.addConstraint([
    Sketcher.Constraint("Block", 1),
    Sketcher.Constraint("Block", 2),
    Sketcher.Constraint("Coincident", 0, 2, 1, 2),
    Sketcher.Constraint("Coincident", 2, 2, 3, 1),
    Sketcher.Constraint("Coincident", 3, 2, 0, 1),
    Sketcher.Constraint("Vertical", 0),
    Sketcher.Constraint("Horizontal", 3),
])
pocket8 = body.newObject("PartDesign::Pocket", "Pocket007")
pocket8.Profile = sketch17
pocket8.Length = 6
doc.recompute()

fillet = body.newObject("PartDesign::Fillet", "Fillet")
fillet.Base = (pocket8, edges_at(pocket8, [(-95.842, -15.524, 24), (-57.963, 19.661, 24), (-79.859, -39.735, 24)]))
fillet.Radius = 1

# Sketch on XZ plane
sketch18 = body.newObject("Sketcher::SketchObject", "Sketch017")
sketch18.AttachmentSupport = (doc.getObject("XZ_Plane"), [""])
sketch18.MapMode = "FlatFace"
sketch18.AttachmentOffset = App.Placement(App.Vector(0, 0, 15.70989), App.Rotation())
add_polygon(sketch18, [(-13.910507, 6.8), (-18.182899, 6.8), (-20.319095, 10.5), (-18.182899, 14.2), (-13.910507, 14.2), (-11.774311, 10.5)])  # lines 0-5
sketch18.addConstraint([
    Sketcher.Constraint("Horizontal", 0),
    Sketcher.Constraint("Horizontal", 3),
    Sketcher.Constraint("Parallel", 1, 4),
    Sketcher.Constraint("Parallel", 2, 5),
    Sketcher.Constraint("Horizontal", 1, 2, 4, 2),
    Sketcher.Constraint("Vertical", 0, 2, 2, 2),
    Sketcher.Constraint("Vertical", 3, 2, 5, 2),
    Sketcher.Constraint("Angle", 1, Q("120 deg")),
    Sketcher.Constraint("DistanceY", -1, 1, 0, 2, 6.8),
    Sketcher.Constraint("DistanceY", -1, 1, 1, 2, 10.5),
    Sketcher.Constraint("DistanceX", 0, 2, 0, 1, 4.272392),
    Sketcher.Constraint("DistanceX", 0, 2, -1, 1, 18.182899),
])
pocket9 = body.newObject("PartDesign::Pocket", "Pocket008")
pocket9.Profile = sketch18
pocket9.Length = 2
pocket9.Reversed = True

doc.recompute()
